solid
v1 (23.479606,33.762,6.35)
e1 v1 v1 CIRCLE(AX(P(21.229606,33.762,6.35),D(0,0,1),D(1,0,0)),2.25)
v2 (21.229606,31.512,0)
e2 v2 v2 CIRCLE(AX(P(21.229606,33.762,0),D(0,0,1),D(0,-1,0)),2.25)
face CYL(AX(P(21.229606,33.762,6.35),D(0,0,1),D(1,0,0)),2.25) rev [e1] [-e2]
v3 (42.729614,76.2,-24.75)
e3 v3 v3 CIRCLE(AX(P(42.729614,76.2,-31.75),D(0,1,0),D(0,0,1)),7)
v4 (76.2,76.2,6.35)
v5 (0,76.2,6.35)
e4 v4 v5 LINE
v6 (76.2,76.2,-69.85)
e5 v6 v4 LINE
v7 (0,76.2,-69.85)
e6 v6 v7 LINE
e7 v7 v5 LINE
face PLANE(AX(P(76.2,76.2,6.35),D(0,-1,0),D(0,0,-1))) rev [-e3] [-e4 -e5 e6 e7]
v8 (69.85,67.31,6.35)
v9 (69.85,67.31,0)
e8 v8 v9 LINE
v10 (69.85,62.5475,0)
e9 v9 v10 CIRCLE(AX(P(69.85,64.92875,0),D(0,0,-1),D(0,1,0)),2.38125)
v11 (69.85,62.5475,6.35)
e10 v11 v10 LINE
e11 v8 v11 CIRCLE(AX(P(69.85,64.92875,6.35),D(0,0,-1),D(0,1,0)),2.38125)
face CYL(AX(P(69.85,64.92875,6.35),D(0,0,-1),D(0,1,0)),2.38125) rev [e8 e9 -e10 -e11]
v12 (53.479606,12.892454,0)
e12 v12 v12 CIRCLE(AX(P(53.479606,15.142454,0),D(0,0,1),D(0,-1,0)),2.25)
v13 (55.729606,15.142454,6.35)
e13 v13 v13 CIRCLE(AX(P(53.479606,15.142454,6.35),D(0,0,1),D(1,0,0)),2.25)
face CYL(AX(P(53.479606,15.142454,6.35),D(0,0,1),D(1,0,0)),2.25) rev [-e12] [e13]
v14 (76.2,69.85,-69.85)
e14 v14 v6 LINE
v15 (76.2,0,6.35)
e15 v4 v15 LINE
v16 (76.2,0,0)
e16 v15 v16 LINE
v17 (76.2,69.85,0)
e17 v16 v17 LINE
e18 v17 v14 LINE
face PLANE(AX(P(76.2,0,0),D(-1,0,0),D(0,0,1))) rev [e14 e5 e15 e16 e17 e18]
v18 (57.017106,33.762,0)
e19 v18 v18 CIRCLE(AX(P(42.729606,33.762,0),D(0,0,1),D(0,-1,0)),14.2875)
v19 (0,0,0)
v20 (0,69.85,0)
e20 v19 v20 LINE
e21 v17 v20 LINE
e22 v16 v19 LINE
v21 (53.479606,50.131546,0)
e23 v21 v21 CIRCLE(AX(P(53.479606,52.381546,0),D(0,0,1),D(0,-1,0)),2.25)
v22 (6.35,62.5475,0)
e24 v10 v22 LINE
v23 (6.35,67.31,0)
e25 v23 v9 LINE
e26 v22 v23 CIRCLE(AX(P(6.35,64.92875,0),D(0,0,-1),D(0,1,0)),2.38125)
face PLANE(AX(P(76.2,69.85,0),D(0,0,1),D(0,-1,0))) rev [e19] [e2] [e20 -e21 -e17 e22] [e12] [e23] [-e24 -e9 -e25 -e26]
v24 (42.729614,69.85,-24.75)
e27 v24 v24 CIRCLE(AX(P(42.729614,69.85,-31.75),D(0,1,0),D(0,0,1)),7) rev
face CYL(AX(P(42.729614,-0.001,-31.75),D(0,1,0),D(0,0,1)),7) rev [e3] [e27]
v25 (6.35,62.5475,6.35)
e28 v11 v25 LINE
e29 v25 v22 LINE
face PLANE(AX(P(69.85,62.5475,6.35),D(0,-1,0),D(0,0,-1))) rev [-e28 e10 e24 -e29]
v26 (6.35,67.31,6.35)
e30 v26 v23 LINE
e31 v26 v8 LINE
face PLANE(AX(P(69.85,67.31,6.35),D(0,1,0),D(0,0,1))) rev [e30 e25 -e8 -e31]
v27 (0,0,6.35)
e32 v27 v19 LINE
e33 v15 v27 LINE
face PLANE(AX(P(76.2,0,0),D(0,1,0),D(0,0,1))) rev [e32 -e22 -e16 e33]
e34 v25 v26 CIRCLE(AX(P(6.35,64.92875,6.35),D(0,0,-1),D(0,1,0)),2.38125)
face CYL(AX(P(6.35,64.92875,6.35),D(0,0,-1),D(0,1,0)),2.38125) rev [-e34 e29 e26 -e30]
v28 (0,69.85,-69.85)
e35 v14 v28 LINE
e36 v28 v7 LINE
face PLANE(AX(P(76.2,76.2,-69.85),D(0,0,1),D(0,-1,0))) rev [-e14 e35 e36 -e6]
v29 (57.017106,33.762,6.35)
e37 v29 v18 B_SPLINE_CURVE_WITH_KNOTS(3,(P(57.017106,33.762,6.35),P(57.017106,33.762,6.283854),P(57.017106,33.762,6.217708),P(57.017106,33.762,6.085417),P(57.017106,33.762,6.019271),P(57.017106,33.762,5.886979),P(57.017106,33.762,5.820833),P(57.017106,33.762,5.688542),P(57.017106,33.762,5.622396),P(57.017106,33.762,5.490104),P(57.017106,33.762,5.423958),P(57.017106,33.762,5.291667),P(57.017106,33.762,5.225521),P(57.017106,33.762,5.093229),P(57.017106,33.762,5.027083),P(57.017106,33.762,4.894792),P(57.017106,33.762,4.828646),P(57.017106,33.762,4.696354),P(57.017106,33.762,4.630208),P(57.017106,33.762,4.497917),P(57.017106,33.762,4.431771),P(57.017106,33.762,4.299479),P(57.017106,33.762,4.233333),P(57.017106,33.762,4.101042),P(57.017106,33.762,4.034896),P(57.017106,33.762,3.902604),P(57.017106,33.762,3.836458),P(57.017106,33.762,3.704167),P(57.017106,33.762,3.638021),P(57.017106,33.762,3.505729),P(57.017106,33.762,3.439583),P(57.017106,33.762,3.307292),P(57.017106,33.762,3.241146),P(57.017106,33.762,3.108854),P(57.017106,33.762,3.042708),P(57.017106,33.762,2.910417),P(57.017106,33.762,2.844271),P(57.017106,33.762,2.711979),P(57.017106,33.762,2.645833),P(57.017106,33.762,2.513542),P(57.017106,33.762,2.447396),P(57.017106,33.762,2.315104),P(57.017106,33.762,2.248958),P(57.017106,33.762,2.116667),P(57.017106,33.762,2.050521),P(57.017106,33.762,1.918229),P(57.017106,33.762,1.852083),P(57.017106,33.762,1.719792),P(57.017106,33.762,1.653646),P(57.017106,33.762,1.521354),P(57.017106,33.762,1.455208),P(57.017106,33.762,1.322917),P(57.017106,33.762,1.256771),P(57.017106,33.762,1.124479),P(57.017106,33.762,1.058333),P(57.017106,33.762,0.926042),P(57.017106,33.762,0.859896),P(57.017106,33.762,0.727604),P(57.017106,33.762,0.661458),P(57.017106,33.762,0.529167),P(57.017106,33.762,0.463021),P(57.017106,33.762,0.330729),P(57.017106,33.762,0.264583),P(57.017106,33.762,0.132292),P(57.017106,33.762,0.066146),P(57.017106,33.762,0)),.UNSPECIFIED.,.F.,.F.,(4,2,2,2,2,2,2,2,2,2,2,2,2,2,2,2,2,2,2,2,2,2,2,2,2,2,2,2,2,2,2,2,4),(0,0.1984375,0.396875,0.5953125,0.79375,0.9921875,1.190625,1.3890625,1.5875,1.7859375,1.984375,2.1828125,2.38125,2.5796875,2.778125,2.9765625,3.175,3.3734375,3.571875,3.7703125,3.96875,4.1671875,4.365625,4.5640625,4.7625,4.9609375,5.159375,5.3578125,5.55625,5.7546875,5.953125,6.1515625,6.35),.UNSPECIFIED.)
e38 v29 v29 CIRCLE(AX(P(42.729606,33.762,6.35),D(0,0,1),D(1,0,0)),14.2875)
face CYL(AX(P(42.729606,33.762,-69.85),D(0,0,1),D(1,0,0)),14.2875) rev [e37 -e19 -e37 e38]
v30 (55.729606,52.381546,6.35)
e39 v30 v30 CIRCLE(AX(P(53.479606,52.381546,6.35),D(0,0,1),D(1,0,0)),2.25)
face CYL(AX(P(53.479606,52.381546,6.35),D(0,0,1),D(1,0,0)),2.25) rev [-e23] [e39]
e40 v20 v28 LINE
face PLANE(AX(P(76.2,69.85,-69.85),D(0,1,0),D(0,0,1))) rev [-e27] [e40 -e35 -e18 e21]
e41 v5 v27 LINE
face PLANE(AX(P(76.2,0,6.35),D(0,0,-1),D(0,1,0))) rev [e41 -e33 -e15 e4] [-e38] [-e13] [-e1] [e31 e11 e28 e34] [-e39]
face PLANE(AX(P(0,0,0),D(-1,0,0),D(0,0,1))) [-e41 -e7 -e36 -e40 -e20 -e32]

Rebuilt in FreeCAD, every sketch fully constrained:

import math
import FreeCAD as App
import Part
import Sketcher
from FreeCAD import Vector
Q = App.Units.Quantity

doc = App.newDocument("Part")
params = doc.addObject("Spreadsheet::Sheet", "Params")
for row, (alias, value) in enumerate([
    ("sketch1_width", "3 in"),
    ("sketch1_width2", "2.75 in"),
    ("pad1_length", "3 in"),
    ("sketch2_diameter", "1.125 in"),
    ("hole_diameter", "4.5 mm"),
    ("sketch5_width", "2.5 in"),
    ("sketch5_radius", "0.09375 in"),
], start=1):
    params.set(f"A{row}", alias)
    params.set(f"B{row}", "=" + value)
    params.setAlias(f"B{row}", alias)

body = doc.addObject("PartDesign::Body", "Body")

sketch1 = body.newObject("Sketcher::SketchObject", "Sketch")
sketch1.AttachmentSupport = (doc.getObject("YZ_Plane"), [""])
sketch1.MapMode = "FlatFace"
sketch1.addGeometry([
    Part.LineSegment(Vector(76, -70, 0), Vector(76, 6, 0)),
    Part.LineSegment(Vector(76, 6, 0), Vector(0, 6, 0)),
    Part.LineSegment(Vector(0, 6, 0), Vector(0, 0, 0)),
    Part.LineSegment(Vector(0, 0, 0), Vector(70, 0, 0)),
    Part.LineSegment(Vector(70, 0, 0), Vector(70, -70, 0)),
    Part.LineSegment(Vector(70, -70, 0), Vector(76, -70, 0)),
], False)
sketch1.addConstraint([
    Sketcher.Constraint("Coincident", 0, 2, 1, 1),
    Sketcher.Constraint("Coincident", 1, 2, 2, 1),
    Sketcher.Constraint("Coincident", 2, 2, 3, 1),
    Sketcher.Constraint("Coincident", 3, 2, 4, 1),
    Sketcher.Constraint("Coincident", 4, 2, 5, 1),
    Sketcher.Constraint("Coincident", 5, 2, 0, 1),
    Sketcher.Constraint("Vertical", 0),
    Sketcher.Constraint("Horizontal", 1),
    Sketcher.Constraint("Vertical", 2),
    Sketcher.Constraint("Horizontal", 3),
    Sketcher.Constraint("Vertical", 4),
    Sketcher.Constraint("Horizontal", 5),
    Sketcher.Constraint("Coincident", 2, 2, -1, 1),
    Sketcher.Constraint("Equal", 1, 0),
    Sketcher.Constraint("Equal", 5, 2),
    Sketcher.Constraint("DistanceX", 1, 2, 1, 1, Q("3 in")),
    Sketcher.Constraint("DistanceX", 3, 1, 3, 2, Q("2.75 in")),
])
sketch1.setExpression("Constraints[15]", "Params.sketch1_width")
sketch1.setExpression("Constraints[16]", "Params.sketch1_width2")
pad1 = body.newObject("PartDesign::Pad", "Pad")
pad1.Profile = sketch1
pad1.setExpression("Length", "Params.pad1_length")

sketch2 = body.newObject("Sketcher::SketchObject", "Sketch001")
sketch2.AttachmentSupport = (doc.getObject("XY_Plane"), [""])
sketch2.MapMode = "FlatFace"
sketch2.AttachmentOffset = App.Placement(Vector(0, 0, 0.25 * 25.4), App.Rotation())
sketch2.addGeometry(Part.Circle(Vector(43, 34, 0), Vector(0, 0, 1), 14), False)
sketch2.addConstraint([
    Sketcher.Constraint("Diameter", 0, Q("1.125 in")),
    Sketcher.Constraint("DistanceY", -1, 1, 0, 3, 33.762),
    Sketcher.Constraint("DistanceX", -1, 1, 0, 3, 42.729606),
])
sketch2.setExpression("Constraints[0]", "Params.sketch2_diameter")
pocket1 = body.newObject("PartDesign::Pocket", "Pocket")
pocket1.Profile = sketch2
pocket1.Type = "ThroughAll"

sketch3 = body.newObject("Sketcher::SketchObject", "Sketch002")
sketch3.AttachmentSupport = (doc.getObject("XY_Plane"), [""])
sketch3.MapMode = "FlatFace"
sketch3.AttachmentOffset = App.Placement(Vector(0, 0, 0.25 * 25.4), App.Rotation())
sketch3.addGeometry([
    Part.Circle(Vector(53.5, 52.4, 0), Vector(0, 0, 1), 2.2),
    Part.Circle(Vector(21.2, 33.8, 0), Vector(0, 0, 1), 2.2),
    Part.Circle(Vector(53.5, 15.1, 0), Vector(0, 0, 1), 2.2),
], False)
sketch3.addConstraint([
    Sketcher.Constraint("Equal", 0, 1),
    Sketcher.Constraint("Equal", 1, 2),
    Sketcher.Constraint("Vertical", 0, 3, 2, 3),
    Sketcher.Constraint("Diameter", 0, 4.5),
    Sketcher.Constraint("DistanceY", -1, 1, 1, 3, 33.762),
    Sketcher.Constraint("DistanceX", 1, 3, 0, 3, 32.25),
    Sketcher.Constraint("DistanceX", -1, 1, 0, 3, 53.479606),
    Sketcher.Constraint("DistanceY", -1, 1, 0, 3, 52.381546),
    Sketcher.Constraint("DistanceY", -1, 1, 2, 3, 15.142454),
])
doc.recompute()
hole = body.newObject("PartDesign::Hole", "Hole")
hole.Profile = sketch3
hole.ThreadType = "None"
hole.setExpression("Diameter", "Params.hole_diameter")
hole.DepthType = "ThroughAll"

sketch4 = body.newObject("Sketcher::SketchObject", "Sketch003")
sketch4.AttachmentSupport = (doc.getObject("XZ_Plane"), [""])
sketch4.MapMode = "FlatFace"
sketch4.AttachmentOffset = App.Placement(Vector(0, 0, -3 * 25.4), App.Rotation())
sketch4.addGeometry(Part.Circle(Vector(43, -32, 0), Vector(0, 0, 1), 7), False)
sketch4.addConstraint([
    Sketcher.Constraint("Diameter", 0, 14.0),
    Sketcher.Constraint("DistanceY", 0, 3, -1, 1, Q("1.25 in")),
    Sketcher.Constraint("DistanceX", -1, 1, 0, 3, 42.729614),
])
pocket2 = body.newObject("PartDesign::Pocket", "Pocket001")
pocket2.Profile = sketch4
pocket2.Type = "UpToFirst"
pocket2.Reversed = True

sketch5 = body.newObject("Sketcher::SketchObject", "Sketch004")
sketch5.AttachmentSupport = (doc.getObject("XY_Plane"), [""])
sketch5.MapMode = "FlatFace"
sketch5.addGeometry([
    Part.LineSegment(Vector(6.3, 67.3, 0), Vector(69.8, 67.3, 0)),
    Part.ArcOfCircle(Part.Circle(Vector(69.8, 64.9, 0), Vector(0, 0, 1), 2.4), math.radians(-90), math.radians(90)),
    Part.LineSegment(Vector(69.8, 62.5, 0), Vector(6.3, 62.5, 0)),
    Part.ArcOfCircle(Part.Circle(Vector(6.3, 64.9, 0), Vector(0, 0, 1), 2.4), math.radians(90), math.radians(270)),
], False)
sketch5.addConstraint([
    Sketcher.Constraint("Tangent", 0, 2, 1, 2),
    Sketcher.Constraint("Tangent", 1, 1, 2, 1),
    Sketcher.Constraint("Tangent", 2, 2, 3, 2),
    Sketcher.Constraint("Tangent", 3, 1, 0, 1),
    Sketcher.Constraint("Horizontal", 0),
    Sketcher.Constraint("Horizontal", 2),
    Sketcher.Constraint("DistanceX", 0, 1, 0, 2, Q("2.5 in")),
    Sketcher.Constraint("Radius", 1, Q("0.09375 in")),
    Sketcher.Constraint("DistanceX", -1, 1, 1, 3, Q("2.75 in")),
    Sketcher.Constraint("DistanceY", -1, 1, 0, 2, Q("2.65 in")),
])
sketch5.setExpression("Constraints[6]", "Params.sketch5_width")
sketch5.setExpression("Constraints[7]", "Params.sketch5_radius")
pocket3 = body.newObject("PartDesign::Pocket", "Pocket002")
pocket3.Profile = sketch5
pocket3.Type = "ThroughAll"
pocket3.Reversed = True

doc.recompute()
